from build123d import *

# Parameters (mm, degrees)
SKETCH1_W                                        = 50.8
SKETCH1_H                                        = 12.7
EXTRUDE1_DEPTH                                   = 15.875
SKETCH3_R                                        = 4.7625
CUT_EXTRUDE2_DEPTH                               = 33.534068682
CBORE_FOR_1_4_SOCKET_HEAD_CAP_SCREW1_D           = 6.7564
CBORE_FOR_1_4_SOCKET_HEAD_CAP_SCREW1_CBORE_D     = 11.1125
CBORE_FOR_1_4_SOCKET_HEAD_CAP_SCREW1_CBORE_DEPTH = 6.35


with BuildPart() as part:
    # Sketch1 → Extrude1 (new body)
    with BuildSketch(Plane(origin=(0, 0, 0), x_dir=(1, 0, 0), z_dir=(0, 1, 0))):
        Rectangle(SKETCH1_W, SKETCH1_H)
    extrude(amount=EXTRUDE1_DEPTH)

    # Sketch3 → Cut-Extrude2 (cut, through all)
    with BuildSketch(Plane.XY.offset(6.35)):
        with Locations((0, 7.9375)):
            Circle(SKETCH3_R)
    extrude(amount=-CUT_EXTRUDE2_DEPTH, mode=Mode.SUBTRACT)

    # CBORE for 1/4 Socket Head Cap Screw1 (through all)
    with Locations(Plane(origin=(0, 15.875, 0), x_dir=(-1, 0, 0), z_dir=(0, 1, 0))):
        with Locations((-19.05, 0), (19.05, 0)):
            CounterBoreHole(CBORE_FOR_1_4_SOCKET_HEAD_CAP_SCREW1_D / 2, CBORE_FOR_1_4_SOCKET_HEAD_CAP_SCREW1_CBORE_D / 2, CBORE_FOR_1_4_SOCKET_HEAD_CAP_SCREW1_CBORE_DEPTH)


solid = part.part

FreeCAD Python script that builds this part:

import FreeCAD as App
import Part
import Sketcher

V = App.Vector
Q = App.Units.Quantity

doc = App.newDocument("Part")
body = doc.addObject("PartDesign::Body", "Body")

# Sketch on XZ plane
sketch1 = body.newObject("Sketcher::SketchObject", "Sketch")
sketch1.AttachmentSupport = (doc.getObject("XZ_Plane"), [""])
sketch1.MapMode = "FlatFace"
sketch1.addGeometry(Part.LineSegment(V(-25.4, -6.35, 0), V(-25.4, 6.35, 0)), False)
sketch1.addGeometry(Part.LineSegment(V(-25.4, 6.35, 0), V(25.4, 6.35, 0)), False)
sketch1.addGeometry(Part.LineSegment(V(25.4, 6.35, 0), V(25.4, -6.35, 0)), False)
sketch1.addGeometry(Part.LineSegment(V(25.4, -6.35, 0), V(-25.4, -6.35, 0)), False)
sketch1.addConstraint(Sketcher.Constraint("Coincident", 0, 2, 1, 1))
sketch1.addConstraint(Sketcher.Constraint("Coincident", 1, 2, 2, 1))
sketch1.addConstraint(Sketcher.Constraint("Coincident", 2, 2, 3, 1))
sketch1.addConstraint(Sketcher.Constraint("Coincident", 3, 2, 0, 1))
sketch1.addConstraint(Sketcher.Constraint("Vertical", 0))
sketch1.addConstraint(Sketcher.Constraint("Horizontal", 1))
sketch1.addConstraint(Sketcher.Constraint("Vertical", 2))
sketch1.addConstraint(Sketcher.Constraint("Horizontal", 3))
sketch1.addConstraint(Sketcher.Constraint("Symmetric", 0, 2, 2, 2, -1, 1))
sketch1.addConstraint(Sketcher.Constraint("DistanceX", 1, 1, 1, 2, Q("2 in")))
sketch1.addConstraint(Sketcher.Constraint("DistanceY", 0, 1, 0, 2, Q("0.5 in")))
pad1 = body.newObject("PartDesign::Pad", "Pad")
pad1.Profile = sketch1
pad1.Length = Q("0.625 in")
pad1.Reversed = True

# Sketch on XY plane
sketch2 = body.newObject("Sketcher::SketchObject", "Sketch001")
sketch2.AttachmentSupport = (doc.getObject("XY_Plane"), [""])
sketch2.MapMode = "FlatFace"
sketch2.AttachmentOffset = App.Placement(V(0, 0, 0.25 * 25.4), App.Rotation())
sketch2.addGeometry(Part.Circle(V(0, 7.9375, 0), V(0, 0, 1), 4.7625), False)
sketch2.addConstraint(Sketcher.Constraint("PointOnObject", 0, 3, -2))
sketch2.addConstraint(Sketcher.Constraint("Diameter", 0, Q("0.375 in")))
sketch2.addConstraint(Sketcher.Constraint("DistanceY", -1, 1, 0, 3, Q("0.3125 in")))
pocket1 = body.newObject("PartDesign::Pocket", "Pocket")
pocket1.Profile = sketch2
pocket1.Type = "ThroughAll"

# Sketch on XZ plane
sketch3 = body.newObject("Sketcher::SketchObject", "Sketch002")
sketch3.AttachmentSupport = (doc.getObject("XZ_Plane"), [""])
sketch3.MapMode = "FlatFace"
sketch3.AttachmentOffset = App.Placement(V(0, 0, -0.625 * 25.4), App.Rotation())
sketch3.addGeometry(Part.Circle(V(19.05, 0, 0), V(0, 0, 1), 3.3782), False)
sketch3.addGeometry(Part.Circle(V(-19.05, 0, 0), V(0, 0, 1), 3.3782), False)
sketch3.addConstraint(Sketcher.Constraint("Equal", 0, 1))
sketch3.addConstraint(Sketcher.Constraint("Symmetric", 0, 3, 1, 3, -1, 1))
sketch3.addConstraint(Sketcher.Constraint("PointOnObject", 0, 3, -1))
sketch3.addConstraint(Sketcher.Constraint("Diameter", 0, Q("0.266 in")))
sketch3.addConstraint(Sketcher.Constraint("DistanceX", 1, 3, 0, 3, Q("1.5 in")))
doc.recompute()
hole = body.newObject("PartDesign::Hole", "Hole")
hole.Profile = sketch3
hole.ThreadType = "None"
hole.Diameter = Q("0.266 in")
hole.DepthType = "ThroughAll"
hole.HoleCutType = "Counterbore"
hole.HoleCutDiameter = Q("0.4375 in")
hole.HoleCutDepth = Q("0.25 in")
hole.Reversed = True

doc.recompute()
